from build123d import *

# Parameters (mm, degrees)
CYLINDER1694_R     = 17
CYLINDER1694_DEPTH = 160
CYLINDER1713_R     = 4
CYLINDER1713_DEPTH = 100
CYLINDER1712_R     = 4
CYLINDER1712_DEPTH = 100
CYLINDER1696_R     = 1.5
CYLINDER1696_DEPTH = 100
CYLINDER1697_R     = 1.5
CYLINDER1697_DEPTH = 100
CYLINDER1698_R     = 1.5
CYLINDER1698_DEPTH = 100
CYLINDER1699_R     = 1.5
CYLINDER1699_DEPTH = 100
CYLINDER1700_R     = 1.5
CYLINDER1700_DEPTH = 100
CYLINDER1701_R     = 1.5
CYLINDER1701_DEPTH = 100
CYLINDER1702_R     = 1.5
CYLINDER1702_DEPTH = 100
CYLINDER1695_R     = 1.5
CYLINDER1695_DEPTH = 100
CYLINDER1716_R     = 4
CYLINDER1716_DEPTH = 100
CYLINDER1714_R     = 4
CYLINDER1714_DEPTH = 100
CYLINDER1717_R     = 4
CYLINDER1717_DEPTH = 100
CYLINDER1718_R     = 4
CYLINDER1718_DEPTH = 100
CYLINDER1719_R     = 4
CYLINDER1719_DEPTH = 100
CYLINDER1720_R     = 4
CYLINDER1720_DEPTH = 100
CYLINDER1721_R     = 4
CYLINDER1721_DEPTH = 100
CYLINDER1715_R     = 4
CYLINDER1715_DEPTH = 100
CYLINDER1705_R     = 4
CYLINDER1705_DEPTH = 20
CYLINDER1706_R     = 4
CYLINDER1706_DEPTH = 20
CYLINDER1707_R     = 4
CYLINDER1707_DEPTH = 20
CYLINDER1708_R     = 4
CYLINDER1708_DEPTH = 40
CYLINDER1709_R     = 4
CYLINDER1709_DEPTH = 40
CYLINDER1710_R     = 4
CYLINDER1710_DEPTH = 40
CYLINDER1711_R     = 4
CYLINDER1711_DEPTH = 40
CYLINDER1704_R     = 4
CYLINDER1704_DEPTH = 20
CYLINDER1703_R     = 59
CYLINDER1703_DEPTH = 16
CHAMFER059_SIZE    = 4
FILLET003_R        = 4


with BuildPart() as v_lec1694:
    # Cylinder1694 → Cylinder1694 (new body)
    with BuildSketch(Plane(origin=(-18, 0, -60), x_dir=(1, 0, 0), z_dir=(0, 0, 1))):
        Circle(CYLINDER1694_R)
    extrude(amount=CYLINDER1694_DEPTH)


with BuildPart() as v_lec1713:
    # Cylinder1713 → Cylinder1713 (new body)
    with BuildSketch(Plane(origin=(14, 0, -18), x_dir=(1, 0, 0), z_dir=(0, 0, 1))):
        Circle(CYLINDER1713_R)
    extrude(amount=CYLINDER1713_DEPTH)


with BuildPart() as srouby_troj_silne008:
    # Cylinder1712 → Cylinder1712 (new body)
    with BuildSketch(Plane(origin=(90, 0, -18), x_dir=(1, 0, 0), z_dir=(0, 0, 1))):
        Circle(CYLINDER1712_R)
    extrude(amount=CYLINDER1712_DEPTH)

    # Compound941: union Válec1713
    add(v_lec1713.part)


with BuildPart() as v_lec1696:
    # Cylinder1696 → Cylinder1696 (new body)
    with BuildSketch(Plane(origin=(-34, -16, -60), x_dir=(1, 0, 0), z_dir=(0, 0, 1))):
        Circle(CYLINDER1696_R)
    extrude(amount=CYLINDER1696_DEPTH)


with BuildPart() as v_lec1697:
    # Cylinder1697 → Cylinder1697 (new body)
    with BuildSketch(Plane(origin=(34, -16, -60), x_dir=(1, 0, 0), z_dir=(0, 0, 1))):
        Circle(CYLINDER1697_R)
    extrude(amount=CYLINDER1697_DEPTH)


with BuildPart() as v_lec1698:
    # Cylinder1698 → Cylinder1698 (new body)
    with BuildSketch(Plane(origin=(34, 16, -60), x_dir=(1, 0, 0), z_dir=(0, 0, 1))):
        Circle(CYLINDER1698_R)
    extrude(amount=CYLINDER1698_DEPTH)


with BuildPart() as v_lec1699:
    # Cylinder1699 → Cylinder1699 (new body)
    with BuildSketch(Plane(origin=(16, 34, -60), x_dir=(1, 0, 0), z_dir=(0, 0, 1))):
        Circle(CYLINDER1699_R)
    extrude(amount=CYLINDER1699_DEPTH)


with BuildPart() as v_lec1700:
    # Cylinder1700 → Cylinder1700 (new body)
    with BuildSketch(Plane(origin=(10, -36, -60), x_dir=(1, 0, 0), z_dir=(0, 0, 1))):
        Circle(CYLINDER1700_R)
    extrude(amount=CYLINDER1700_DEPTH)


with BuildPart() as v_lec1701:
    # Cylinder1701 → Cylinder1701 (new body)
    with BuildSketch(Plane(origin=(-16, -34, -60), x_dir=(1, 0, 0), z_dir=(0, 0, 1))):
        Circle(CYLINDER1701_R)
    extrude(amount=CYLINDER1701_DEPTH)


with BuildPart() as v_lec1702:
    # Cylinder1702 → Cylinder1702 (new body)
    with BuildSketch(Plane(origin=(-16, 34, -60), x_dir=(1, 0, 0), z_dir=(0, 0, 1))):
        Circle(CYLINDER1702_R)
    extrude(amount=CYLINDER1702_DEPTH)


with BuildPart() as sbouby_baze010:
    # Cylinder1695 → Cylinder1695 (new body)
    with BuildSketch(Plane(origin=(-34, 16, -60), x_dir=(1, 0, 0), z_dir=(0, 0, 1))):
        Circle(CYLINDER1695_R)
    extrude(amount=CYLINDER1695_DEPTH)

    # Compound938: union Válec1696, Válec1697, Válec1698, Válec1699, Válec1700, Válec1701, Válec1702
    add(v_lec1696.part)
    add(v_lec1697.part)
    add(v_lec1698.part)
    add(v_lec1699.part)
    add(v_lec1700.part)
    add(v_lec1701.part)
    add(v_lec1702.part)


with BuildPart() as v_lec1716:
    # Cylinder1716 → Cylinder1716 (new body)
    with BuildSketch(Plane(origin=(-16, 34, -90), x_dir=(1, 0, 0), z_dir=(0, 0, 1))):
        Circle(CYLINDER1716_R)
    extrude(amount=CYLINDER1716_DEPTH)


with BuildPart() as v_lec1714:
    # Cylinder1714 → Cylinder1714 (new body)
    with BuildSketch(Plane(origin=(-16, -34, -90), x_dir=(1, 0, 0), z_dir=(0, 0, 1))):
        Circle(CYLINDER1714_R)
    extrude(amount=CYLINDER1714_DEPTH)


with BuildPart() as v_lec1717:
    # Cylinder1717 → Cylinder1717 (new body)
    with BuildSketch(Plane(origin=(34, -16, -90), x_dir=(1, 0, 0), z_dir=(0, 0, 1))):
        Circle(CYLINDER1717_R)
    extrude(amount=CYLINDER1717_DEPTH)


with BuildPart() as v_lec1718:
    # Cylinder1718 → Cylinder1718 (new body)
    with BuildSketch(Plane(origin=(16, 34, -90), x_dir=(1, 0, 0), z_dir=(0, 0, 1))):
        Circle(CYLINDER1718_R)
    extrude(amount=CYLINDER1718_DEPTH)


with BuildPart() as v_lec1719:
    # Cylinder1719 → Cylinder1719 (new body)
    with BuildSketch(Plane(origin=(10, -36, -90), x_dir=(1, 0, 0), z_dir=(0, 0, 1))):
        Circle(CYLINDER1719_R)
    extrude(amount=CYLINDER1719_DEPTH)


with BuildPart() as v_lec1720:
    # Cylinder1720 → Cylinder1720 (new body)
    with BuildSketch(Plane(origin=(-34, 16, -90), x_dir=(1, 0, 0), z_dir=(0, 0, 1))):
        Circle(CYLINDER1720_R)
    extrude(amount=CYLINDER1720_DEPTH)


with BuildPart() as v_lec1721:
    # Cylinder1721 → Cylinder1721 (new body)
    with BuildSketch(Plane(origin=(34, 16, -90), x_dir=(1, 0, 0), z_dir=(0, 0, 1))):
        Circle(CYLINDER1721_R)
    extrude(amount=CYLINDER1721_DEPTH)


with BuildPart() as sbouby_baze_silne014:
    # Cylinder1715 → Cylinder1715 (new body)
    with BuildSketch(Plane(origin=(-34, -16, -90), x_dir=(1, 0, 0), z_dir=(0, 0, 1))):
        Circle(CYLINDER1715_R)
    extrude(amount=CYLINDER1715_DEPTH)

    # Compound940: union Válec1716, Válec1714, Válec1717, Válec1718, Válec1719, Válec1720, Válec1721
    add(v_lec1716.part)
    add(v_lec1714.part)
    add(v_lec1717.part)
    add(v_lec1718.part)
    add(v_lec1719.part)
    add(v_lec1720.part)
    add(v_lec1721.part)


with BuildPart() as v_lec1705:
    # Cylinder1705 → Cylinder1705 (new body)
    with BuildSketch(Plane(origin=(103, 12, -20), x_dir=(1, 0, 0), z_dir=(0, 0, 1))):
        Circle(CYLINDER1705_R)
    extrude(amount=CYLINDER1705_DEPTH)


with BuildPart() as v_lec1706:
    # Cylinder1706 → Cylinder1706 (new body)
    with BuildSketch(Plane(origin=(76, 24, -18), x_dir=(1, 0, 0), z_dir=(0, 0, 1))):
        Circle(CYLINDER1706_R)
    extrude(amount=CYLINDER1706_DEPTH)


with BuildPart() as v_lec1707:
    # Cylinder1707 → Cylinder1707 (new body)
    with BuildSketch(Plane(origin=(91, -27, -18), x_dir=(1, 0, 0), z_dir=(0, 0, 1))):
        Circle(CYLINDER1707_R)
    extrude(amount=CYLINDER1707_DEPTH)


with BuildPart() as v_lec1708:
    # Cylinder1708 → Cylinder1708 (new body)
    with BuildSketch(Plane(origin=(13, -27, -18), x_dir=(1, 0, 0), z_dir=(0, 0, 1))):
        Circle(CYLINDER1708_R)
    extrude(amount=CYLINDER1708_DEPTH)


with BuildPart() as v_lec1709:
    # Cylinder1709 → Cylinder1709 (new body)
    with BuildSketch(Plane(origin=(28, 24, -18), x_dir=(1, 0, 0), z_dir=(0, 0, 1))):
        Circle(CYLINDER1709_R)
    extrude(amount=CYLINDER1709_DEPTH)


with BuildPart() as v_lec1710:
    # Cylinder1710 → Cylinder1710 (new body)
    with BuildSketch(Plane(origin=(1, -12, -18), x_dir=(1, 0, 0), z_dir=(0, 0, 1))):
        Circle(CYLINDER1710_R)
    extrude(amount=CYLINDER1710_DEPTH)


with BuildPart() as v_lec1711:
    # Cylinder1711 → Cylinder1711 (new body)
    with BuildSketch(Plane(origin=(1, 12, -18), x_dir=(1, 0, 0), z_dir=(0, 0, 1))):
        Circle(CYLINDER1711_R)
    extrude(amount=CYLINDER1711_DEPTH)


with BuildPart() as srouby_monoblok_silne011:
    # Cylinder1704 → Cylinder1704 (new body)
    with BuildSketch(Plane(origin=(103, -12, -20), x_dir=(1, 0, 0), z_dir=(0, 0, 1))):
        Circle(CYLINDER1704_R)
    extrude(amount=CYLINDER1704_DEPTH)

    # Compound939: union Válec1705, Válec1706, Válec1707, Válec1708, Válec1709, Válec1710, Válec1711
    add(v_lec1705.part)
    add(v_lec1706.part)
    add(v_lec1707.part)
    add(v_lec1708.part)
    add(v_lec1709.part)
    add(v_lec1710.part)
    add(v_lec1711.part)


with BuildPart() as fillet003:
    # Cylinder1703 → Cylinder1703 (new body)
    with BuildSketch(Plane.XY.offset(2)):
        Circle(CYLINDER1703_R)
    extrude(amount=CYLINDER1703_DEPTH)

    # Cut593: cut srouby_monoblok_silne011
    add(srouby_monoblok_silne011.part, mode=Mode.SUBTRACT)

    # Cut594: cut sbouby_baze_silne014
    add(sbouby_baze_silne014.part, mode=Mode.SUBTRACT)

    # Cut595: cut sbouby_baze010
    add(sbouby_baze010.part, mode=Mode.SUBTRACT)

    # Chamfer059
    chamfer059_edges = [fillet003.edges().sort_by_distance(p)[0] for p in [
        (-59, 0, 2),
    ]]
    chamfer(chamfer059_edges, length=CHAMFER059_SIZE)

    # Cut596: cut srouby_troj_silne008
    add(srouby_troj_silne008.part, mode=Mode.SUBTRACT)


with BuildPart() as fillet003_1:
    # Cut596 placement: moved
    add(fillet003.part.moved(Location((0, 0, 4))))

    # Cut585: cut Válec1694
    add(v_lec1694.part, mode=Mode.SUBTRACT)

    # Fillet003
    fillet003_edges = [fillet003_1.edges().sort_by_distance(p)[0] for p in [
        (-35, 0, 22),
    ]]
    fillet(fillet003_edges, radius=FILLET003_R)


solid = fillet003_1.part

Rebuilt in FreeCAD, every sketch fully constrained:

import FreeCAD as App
import Part
import Sketcher

V = App.Vector
Q = App.Units.Quantity


def edges_at(feature, points):
    """Names of the edges that pass closest to the given points."""
    edges = feature.Shape.Edges
    near = lambda p: min(range(len(edges)), key=lambda i: edges[i].distToShape(Part.Vertex(*p))[0])
    return sorted({f"Edge{near(p) + 1}" for p in points})

doc = App.newDocument("Part")
params = doc.addObject("Spreadsheet::Sheet", "Params")
for row, (alias, value) in enumerate([
    ("sketch1_diameter", "34 mm"),
    ("pad1_length", "160 mm"),
    ("sketch2_diameter", "8 mm"),
    ("pad2_length", "100 mm"),
    ("sketch3_diameter", "8 mm"),
    ("pad3_length", "100 mm"),
    ("sketch4_diameter", "3 mm"),
    ("pad4_length", "100 mm"),
    ("sketch5_diameter", "3 mm"),
    ("pad5_length", "100 mm"),
    ("sketch6_diameter", "3 mm"),
    ("pad6_length", "100 mm"),
    ("sketch7_diameter", "3 mm"),
    ("pad7_length", "100 mm"),
    ("sketch8_diameter", "3 mm"),
    ("pad8_length", "100 mm"),
    ("sketch9_diameter", "3 mm"),
    ("pad9_length", "100 mm"),
    ("sketch10_diameter", "3 mm"),
    ("pad10_length", "100 mm"),
    ("sketch11_diameter", "3 mm"),
    ("pad11_length", "100 mm"),
    ("sketch12_diameter", "8 mm"),
    ("pad12_length", "100 mm"),
    ("sketch13_diameter", "8 mm"),
    ("pad13_length", "100 mm"),
    ("sketch14_diameter", "8 mm"),
    ("pad14_length", "100 mm"),
    ("sketch15_diameter", "8 mm"),
    ("pad15_length", "100 mm"),
    ("sketch16_diameter", "8 mm"),
    ("pad16_length", "100 mm"),
    ("sketch17_diameter", "8 mm"),
    ("pad17_length", "100 mm"),
    ("sketch18_diameter", "8 mm"),
    ("pad18_length", "100 mm"),
    ("sketch19_diameter", "8 mm"),
    ("pad19_length", "100 mm"),
    ("sketch20_diameter", "8 mm"),
    ("pad20_length", "20 mm"),
    ("sketch21_diameter", "8 mm"),
    ("pad21_length", "20 mm"),
    ("sketch22_diameter", "8 mm"),
    ("pad22_length", "20 mm"),
    ("sketch23_diameter", "8 mm"),
    ("pad23_length", "40 mm"),
    ("sketch24_diameter", "8 mm"),
    ("pad24_length", "40 mm"),
    ("sketch25_diameter", "8 mm"),
    ("pad25_length", "40 mm"),
    ("sketch26_diameter", "8 mm"),
    ("pad26_length", "40 mm"),
    ("sketch27_diameter", "8 mm"),
    ("pad27_length", "20 mm"),
    ("sketch28_diameter", "118 mm"),
    ("pad28_length", "16 mm"),
    ("chamfer_size", "4 mm"),
    ("fillet_radius", "4 mm"),
], start=1):
    params.set(f"A{row}", alias)
    params.set(f"B{row}", "=" + value)
    params.setAlias(f"B{row}", alias)

body = doc.addObject("PartDesign::Body", "Body")

# Sketch on XY plane
sketch1 = doc.addObject("Sketcher::SketchObject", "Sketch")
body.addObject(sketch1)
sketch1.AttachmentSupport = (doc.XY_Plane, [""])
sketch1.MapMode = "FlatFace"
sketch1.AttachmentOffset = App.Placement(V(0, 0, -60), App.Rotation())
sketch1.addGeometry(Part.Circle(V(-18, 0, 0), V(0, 0, 1), 17), False)
sketch1.addConstraint([
    Sketcher.Constraint("PointOnObject", 0, 3, -1),
    Sketcher.Constraint("Diameter", 0, Q("34 mm")),
    Sketcher.Constraint("DistanceX", 0, 3, -1, 1, Q("18 mm")),
])
sketch1.setExpression("Constraints[1]", "Params.sketch1_diameter")
pad1 = doc.addObject("PartDesign::Pad", "Pad")
body.addObject(pad1)
pad1.Profile = sketch1
pad1.setExpression("Length", "Params.pad1_length")
body2 = doc.addObject("PartDesign::Body", "Body001")

# Sketch on XY plane
sketch2 = doc.addObject("Sketcher::SketchObject", "Sketch001")
body2.addObject(sketch2)
sketch2.AttachmentSupport = (doc.getObject("XY_Plane001"), [""])
sketch2.MapMode = "FlatFace"
sketch2.AttachmentOffset = App.Placement(V(0, 0, -18), App.Rotation())
sketch2.addGeometry(Part.Circle(V(14, 0, 0), V(0, 0, 1), 4), False)
sketch2.addConstraint([
    Sketcher.Constraint("PointOnObject", 0, 3, -1),
    Sketcher.Constraint("Diameter", 0, Q("8 mm")),
    Sketcher.Constraint("DistanceX", -1, 1, 0, 3, Q("14 mm")),
])
sketch2.setExpression("Constraints[1]", "Params.sketch2_diameter")
pad2 = doc.addObject("PartDesign::Pad", "Pad001")
body2.addObject(pad2)
pad2.Profile = sketch2
pad2.setExpression("Length", "Params.pad2_length")
body3 = doc.addObject("PartDesign::Body", "Body002")
body3.AllowCompound = True

# Sketch on XY plane
sketch3 = doc.addObject("Sketcher::SketchObject", "Sketch002")
body3.addObject(sketch3)
sketch3.AttachmentSupport = (doc.getObject("XY_Plane002"), [""])
sketch3.MapMode = "FlatFace"
sketch3.AttachmentOffset = App.Placement(V(0, 0, -18), App.Rotation())
sketch3.addGeometry(Part.Circle(V(90, 0, 0), V(0, 0, 1), 4), False)
sketch3.addConstraint([
    Sketcher.Constraint("PointOnObject", 0, 3, -1),
    Sketcher.Constraint("Diameter", 0, Q("8 mm")),
    Sketcher.Constraint("DistanceX", -1, 1, 0, 3, Q("90 mm")),
])
sketch3.setExpression("Constraints[1]", "Params.sketch3_diameter")
pad3 = doc.addObject("PartDesign::Pad", "Pad002")
body3.addObject(pad3)
pad3.Profile = sketch3
pad3.setExpression("Length", "Params.pad3_length")
doc.recompute()

boolean = doc.addObject("PartDesign::Boolean", "Boolean")
body3.addObject(boolean)
boolean.Type = "Fuse"
boolean.addObjects([body2])
body4 = doc.addObject("PartDesign::Body", "Body003")

# Sketch on XY plane
sketch4 = doc.addObject("Sketcher::SketchObject", "Sketch003")
body4.addObject(sketch4)
sketch4.AttachmentSupport = (doc.getObject("XY_Plane003"), [""])
sketch4.MapMode = "FlatFace"
sketch4.AttachmentOffset = App.Placement(V(0, 0, -60), App.Rotation())
sketch4.addGeometry(Part.Circle(V(-34, -16, 0), V(0, 0, 1), 1.5), False)
sketch4.addConstraint([
    Sketcher.Constraint("Diameter", 0, Q("3 mm")),
    Sketcher.Constraint("DistanceX", 0, 3, -1, 1, Q("34 mm")),
    Sketcher.Constraint("DistanceY", 0, 3, -1, 1, Q("16 mm")),
])
sketch4.setExpression("Constraints[0]", "Params.sketch4_diameter")
pad4 = doc.addObject("PartDesign::Pad", "Pad003")
body4.addObject(pad4)
pad4.Profile = sketch4
pad4.setExpression("Length", "Params.pad4_length")
body5 = doc.addObject("PartDesign::Body", "Body004")

# Sketch on XY plane
sketch5 = doc.addObject("Sketcher::SketchObject", "Sketch004")
body5.addObject(sketch5)
sketch5.AttachmentSupport = (doc.getObject("XY_Plane004"), [""])
sketch5.MapMode = "FlatFace"
sketch5.AttachmentOffset = App.Placement(V(0, 0, -60), App.Rotation())
sketch5.addGeometry(Part.Circle(V(34, -16, 0), V(0, 0, 1), 1.5), False)
sketch5.addConstraint([
    Sketcher.Constraint("Diameter", 0, Q("3 mm")),
    Sketcher.Constraint("DistanceX", -1, 1, 0, 3, Q("34 mm")),
    Sketcher.Constraint("DistanceY", 0, 3, -1, 1, Q("16 mm")),
])
sketch5.setExpression("Constraints[0]", "Params.sketch5_diameter")
pad5 = doc.addObject("PartDesign::Pad", "Pad004")
body5.addObject(pad5)
pad5.Profile = sketch5
pad5.setExpression("Length", "Params.pad5_length")
body6 = doc.addObject("PartDesign::Body", "Body005")

# Sketch on XY plane
sketch6 = doc.addObject("Sketcher::SketchObject", "Sketch005")
body6.addObject(sketch6)
sketch6.AttachmentSupport = (doc.getObject("XY_Plane005"), [""])
sketch6.MapMode = "FlatFace"
sketch6.AttachmentOffset = App.Placement(V(0, 0, -60), App.Rotation())
sketch6.addGeometry(Part.Circle(V(34, 16, 0), V(0, 0, 1), 1.5), False)
sketch6.addConstraint([
    Sketcher.Constraint("Diameter", 0, Q("3 mm")),
    Sketcher.Constraint("DistanceX", -1, 1, 0, 3, Q("34 mm")),
    Sketcher.Constraint("DistanceY", -1, 1, 0, 3, Q("16 mm")),
])
sketch6.setExpression("Constraints[0]", "Params.sketch6_diameter")
pad6 = doc.addObject("PartDesign::Pad", "Pad005")
body6.addObject(pad6)
pad6.Profile = sketch6
pad6.setExpression("Length", "Params.pad6_length")
body7 = doc.addObject("PartDesign::Body", "Body006")

# Sketch on XY plane
sketch7 = doc.addObject("Sketcher::SketchObject", "Sketch006")
body7.addObject(sketch7)
sketch7.AttachmentSupport = (doc.getObject("XY_Plane006"), [""])
sketch7.MapMode = "FlatFace"
sketch7.AttachmentOffset = App.Placement(V(0, 0, -60), App.Rotation())
sketch7.addGeometry(Part.Circle(V(16, 34, 0), V(0, 0, 1), 1.5), False)
sketch7.addConstraint([
    Sketcher.Constraint("Diameter", 0, Q("3 mm")),
    Sketcher.Constraint("DistanceX", -1, 1, 0, 3, Q("16 mm")),
    Sketcher.Constraint("DistanceY", -1, 1, 0, 3, Q("34 mm")),
])
sketch7.setExpression("Constraints[0]", "Params.sketch7_diameter")
pad7 = doc.addObject("PartDesign::Pad", "Pad006")
body7.addObject(pad7)
pad7.Profile = sketch7
pad7.setExpression("Length", "Params.pad7_length")
body8 = doc.addObject("PartDesign::Body", "Body007")

# Sketch on XY plane
sketch8 = doc.addObject("Sketcher::SketchObject", "Sketch007")
body8.addObject(sketch8)
sketch8.AttachmentSupport = (doc.getObject("XY_Plane007"), [""])
sketch8.MapMode = "FlatFace"
sketch8.AttachmentOffset = App.Placement(V(0, 0, -60), App.Rotation())
sketch8.addGeometry(Part.Circle(V(10, -36, 0), V(0, 0, 1), 1.5), False)
sketch8.addConstraint([
    Sketcher.Constraint("Diameter", 0, Q("3 mm")),
    Sketcher.Constraint("DistanceX", -1, 1, 0, 3, Q("10 mm")),
    Sketcher.Constraint("DistanceY", 0, 3, -1, 1, Q("36 mm")),
])
sketch8.setExpression("Constraints[0]", "Params.sketch8_diameter")
pad8 = doc.addObject("PartDesign::Pad", "Pad007")
body8.addObject(pad8)
pad8.Profile = sketch8
pad8.setExpression("Length", "Params.pad8_length")
body9 = doc.addObject("PartDesign::Body", "Body008")

# Sketch on XY plane
sketch9 = doc.addObject("Sketcher::SketchObject", "Sketch008")
body9.addObject(sketch9)
sketch9.AttachmentSupport = (doc.getObject("XY_Plane008"), [""])
sketch9.MapMode = "FlatFace"
sketch9.AttachmentOffset = App.Placement(V(0, 0, -60), App.Rotation())
sketch9.addGeometry(Part.Circle(V(-16, -34, 0), V(0, 0, 1), 1.5), False)
sketch9.addConstraint([
    Sketcher.Constraint("Diameter", 0, Q("3 mm")),
    Sketcher.Constraint("DistanceX", 0, 3, -1, 1, Q("16 mm")),
    Sketcher.Constraint("DistanceY", 0, 3, -1, 1, Q("34 mm")),
])
sketch9.setExpression("Constraints[0]", "Params.sketch9_diameter")
pad9 = doc.addObject("PartDesign::Pad", "Pad008")
body9.addObject(pad9)
pad9.Profile = sketch9
pad9.setExpression("Length", "Params.pad9_length")
body10 = doc.addObject("PartDesign::Body", "Body009")

# Sketch on XY plane
sketch10 = doc.addObject("Sketcher::SketchObject", "Sketch009")
body10.addObject(sketch10)
sketch10.AttachmentSupport = (doc.getObject("XY_Plane009"), [""])
sketch10.MapMode = "FlatFace"
sketch10.AttachmentOffset = App.Placement(V(0, 0, -60), App.Rotation())
sketch10.addGeometry(Part.Circle(V(-16, 34, 0), V(0, 0, 1), 1.5), False)
sketch10.addConstraint([
    Sketcher.Constraint("Diameter", 0, Q("3 mm")),
    Sketcher.Constraint("DistanceX", 0, 3, -1, 1, Q("16 mm")),
    Sketcher.Constraint("DistanceY", -1, 1, 0, 3, Q("34 mm")),
])
sketch10.setExpression("Constraints[0]", "Params.sketch10_diameter")
pad10 = doc.addObject("PartDesign::Pad", "Pad009")
body10.addObject(pad10)
pad10.Profile = sketch10
pad10.setExpression("Length", "Params.pad10_length")
body11 = doc.addObject("PartDesign::Body", "Body010")
body11.AllowCompound = True

# Sketch on XY plane
sketch11 = doc.addObject("Sketcher::SketchObject", "Sketch010")
body11.addObject(sketch11)
sketch11.AttachmentSupport = (doc.getObject("XY_Plane010"), [""])
sketch11.MapMode = "FlatFace"
sketch11.AttachmentOffset = App.Placement(V(0, 0, -60), App.Rotation())
sketch11.addGeometry(Part.Circle(V(-34, 16, 0), V(0, 0, 1), 1.5), False)
sketch11.addConstraint([
    Sketcher.Constraint("Diameter", 0, Q("3 mm")),
    Sketcher.Constraint("DistanceX", 0, 3, -1, 1, Q("34 mm")),
    Sketcher.Constraint("DistanceY", -1, 1, 0, 3, Q("16 mm")),
])
sketch11.setExpression("Constraints[0]", "Params.sketch11_diameter")
pad11 = doc.addObject("PartDesign::Pad", "Pad010")
body11.addObject(pad11)
pad11.Profile = sketch11
pad11.setExpression("Length", "Params.pad11_length")
doc.recompute()

boolean2 = doc.addObject("PartDesign::Boolean", "Boolean001")
body11.addObject(boolean2)
boolean2.Type = "Fuse"
boolean2.addObjects([body4])
doc.recompute()

boolean3 = doc.addObject("PartDesign::Boolean", "Boolean002")
body11.addObject(boolean3)
boolean3.Type = "Fuse"
boolean3.addObjects([body5])
doc.recompute()

boolean4 = doc.addObject("PartDesign::Boolean", "Boolean003")
body11.addObject(boolean4)
boolean4.Type = "Fuse"
boolean4.addObjects([body6])
doc.recompute()

boolean5 = doc.addObject("PartDesign::Boolean", "Boolean004")
body11.addObject(boolean5)
boolean5.Type = "Fuse"
boolean5.addObjects([body7])
doc.recompute()

boolean6 = doc.addObject("PartDesign::Boolean", "Boolean005")
body11.addObject(boolean6)
boolean6.Type = "Fuse"
boolean6.addObjects([body8])
doc.recompute()

boolean7 = doc.addObject("PartDesign::Boolean", "Boolean006")
body11.addObject(boolean7)
boolean7.Type = "Fuse"
boolean7.addObjects([body9])
doc.recompute()

boolean8 = doc.addObject("PartDesign::Boolean", "Boolean007")
body11.addObject(boolean8)
boolean8.Type = "Fuse"
boolean8.addObjects([body10])
body12 = doc.addObject("PartDesign::Body", "Body011")

# Sketch on XY plane
sketch12 = doc.addObject("Sketcher::SketchObject", "Sketch011")
body12.addObject(sketch12)
sketch12.AttachmentSupport = (doc.getObject("XY_Plane011"), [""])
sketch12.MapMode = "FlatFace"
sketch12.AttachmentOffset = App.Placement(V(0, 0, -90), App.Rotation())
sketch12.addGeometry(Part.Circle(V(-16, 34, 0), V(0, 0, 1), 4), False)
sketch12.addConstraint([
    Sketcher.Constraint("Diameter", 0, Q("8 mm")),
    Sketcher.Constraint("DistanceX", 0, 3, -1, 1, Q("16 mm")),
    Sketcher.Constraint("DistanceY", -1, 1, 0, 3, Q("34 mm")),
])
sketch12.setExpression("Constraints[0]", "Params.sketch12_diameter")
pad12 = doc.addObject("PartDesign::Pad", "Pad011")
body12.addObject(pad12)
pad12.Profile = sketch12
pad12.setExpression("Length", "Params.pad12_length")
body13 = doc.addObject("PartDesign::Body", "Body012")

# Sketch on XY plane
sketch13 = doc.addObject("Sketcher::SketchObject", "Sketch012")
body13.addObject(sketch13)
sketch13.AttachmentSupport = (doc.getObject("XY_Plane012"), [""])
sketch13.MapMode = "FlatFace"
sketch13.AttachmentOffset = App.Placement(V(0, 0, -90), App.Rotation())
sketch13.addGeometry(Part.Circle(V(-16, -34, 0), V(0, 0, 1), 4), False)
sketch13.addConstraint([
    Sketcher.Constraint("Diameter", 0, Q("8 mm")),
    Sketcher.Constraint("DistanceX", 0, 3, -1, 1, Q("16 mm")),
    Sketcher.Constraint("DistanceY", 0, 3, -1, 1, Q("34 mm")),
])
sketch13.setExpression("Constraints[0]", "Params.sketch13_diameter")
pad13 = doc.addObject("PartDesign::Pad", "Pad012")
body13.addObject(pad13)
pad13.Profile = sketch13
pad13.setExpression("Length", "Params.pad13_length")
body14 = doc.addObject("PartDesign::Body", "Body013")

# Sketch on XY plane
sketch14 = doc.addObject("Sketcher::SketchObject", "Sketch013")
body14.addObject(sketch14)
sketch14.AttachmentSupport = (doc.getObject("XY_Plane013"), [""])
sketch14.MapMode = "FlatFace"
sketch14.AttachmentOffset = App.Placement(V(0, 0, -90), App.Rotation())
sketch14.addGeometry(Part.Circle(V(34, -16, 0), V(0, 0, 1), 4), False)
sketch14.addConstraint([
    Sketcher.Constraint("Diameter", 0, Q("8 mm")),
    Sketcher.Constraint("DistanceX", -1, 1, 0, 3, Q("34 mm")),
    Sketcher.Constraint("DistanceY", 0, 3, -1, 1, Q("16 mm")),
])
sketch14.setExpression("Constraints[0]", "Params.sketch14_diameter")
pad14 = doc.addObject("PartDesign::Pad", "Pad013")
body14.addObject(pad14)
pad14.Profile = sketch14
pad14.setExpression("Length", "Params.pad14_length")
body15 = doc.addObject("PartDesign::Body", "Body014")

# Sketch on XY plane
sketch15 = doc.addObject("Sketcher::SketchObject", "Sketch014")
body15.addObject(sketch15)
sketch15.AttachmentSupport = (doc.getObject("XY_Plane014"), [""])
sketch15.MapMode = "FlatFace"
sketch15.AttachmentOffset = App.Placement(V(0, 0, -90), App.Rotation())
sketch15.addGeometry(Part.Circle(V(16, 34, 0), V(0, 0, 1), 4), False)
sketch15.addConstraint([
    Sketcher.Constraint("Diameter", 0, Q("8 mm")),
    Sketcher.Constraint("DistanceX", -1, 1, 0, 3, Q("16 mm")),
    Sketcher.Constraint("DistanceY", -1, 1, 0, 3, Q("34 mm")),
])
sketch15.setExpression("Constraints[0]", "Params.sketch15_diameter")
pad15 = doc.addObject("PartDesign::Pad", "Pad014")
body15.addObject(pad15)
pad15.Profile = sketch15
pad15.setExpression("Length", "Params.pad15_length")
body16 = doc.addObject("PartDesign::Body", "Body015")

# Sketch on XY plane
sketch16 = doc.addObject("Sketcher::SketchObject", "Sketch015")
body16.addObject(sketch16)
sketch16.AttachmentSupport = (doc.getObject("XY_Plane015"), [""])
sketch16.MapMode = "FlatFace"
sketch16.AttachmentOffset = App.Placement(V(0, 0, -90), App.Rotation())
sketch16.addGeometry(Part.Circle(V(10, -36, 0), V(0, 0, 1), 4), False)
sketch16.addConstraint([
    Sketcher.Constraint("Diameter", 0, Q("8 mm")),
    Sketcher.Constraint("DistanceX", -1, 1, 0, 3, Q("10 mm")),
    Sketcher.Constraint("DistanceY", 0, 3, -1, 1, Q("36 mm")),
])
sketch16.setExpression("Constraints[0]", "Params.sketch16_diameter")
pad16 = doc.addObject("PartDesign::Pad", "Pad015")
body16.addObject(pad16)
pad16.Profile = sketch16
pad16.setExpression("Length", "Params.pad16_length")
body17 = doc.addObject("PartDesign::Body", "Body016")

# Sketch on XY plane
sketch17 = doc.addObject("Sketcher::SketchObject", "Sketch016")
body17.addObject(sketch17)
sketch17.AttachmentSupport = (doc.getObject("XY_Plane016"), [""])
sketch17.MapMode = "FlatFace"
sketch17.AttachmentOffset = App.Placement(V(0, 0, -90), App.Rotation())
sketch17.addGeometry(Part.Circle(V(-34, 16, 0), V(0, 0, 1), 4), False)
sketch17.addConstraint([
    Sketcher.Constraint("Diameter", 0, Q("8 mm")),
    Sketcher.Constraint("DistanceX", 0, 3, -1, 1, Q("34 mm")),
    Sketcher.Constraint("DistanceY", -1, 1, 0, 3, Q("16 mm")),
])
sketch17.setExpression("Constraints[0]", "Params.sketch17_diameter")
pad17 = doc.addObject("PartDesign::Pad", "Pad016")
body17.addObject(pad17)
pad17.Profile = sketch17
pad17.setExpression("Length", "Params.pad17_length")
body18 = doc.addObject("PartDesign::Body", "Body017")

# Sketch on XY plane
sketch18 = doc.addObject("Sketcher::SketchObject", "Sketch017")
body18.addObject(sketch18)
sketch18.AttachmentSupport = (doc.getObject("XY_Plane017"), [""])
sketch18.MapMode = "FlatFace"
sketch18.AttachmentOffset = App.Placement(V(0, 0, -90), App.Rotation())
sketch18.addGeometry(Part.Circle(V(34, 16, 0), V(0, 0, 1), 4), False)
sketch18.addConstraint([
    Sketcher.Constraint("Diameter", 0, Q("8 mm")),
    Sketcher.Constraint("DistanceX", -1, 1, 0, 3, Q("34 mm")),
    Sketcher.Constraint("DistanceY", -1, 1, 0, 3, Q("16 mm")),
])
sketch18.setExpression("Constraints[0]", "Params.sketch18_diameter")
pad18 = doc.addObject("PartDesign::Pad", "Pad017")
body18.addObject(pad18)
pad18.Profile = sketch18
pad18.setExpression("Length", "Params.pad18_length")
body19 = doc.addObject("PartDesign::Body", "Body018")
body19.AllowCompound = True

# Sketch on XY plane
sketch19 = doc.addObject("Sketcher::SketchObject", "Sketch018")
body19.addObject(sketch19)
sketch19.AttachmentSupport = (doc.getObject("XY_Plane018"), [""])
sketch19.MapMode = "FlatFace"
sketch19.AttachmentOffset = App.Placement(V(0, 0, -90), App.Rotation())
sketch19.addGeometry(Part.Circle(V(-34, -16, 0), V(0, 0, 1), 4), False)
sketch19.addConstraint([
    Sketcher.Constraint("Diameter", 0, Q("8 mm")),
    Sketcher.Constraint("DistanceX", 0, 3, -1, 1, Q("34 mm")),
    Sketcher.Constraint("DistanceY", 0, 3, -1, 1, Q("16 mm")),
])
sketch19.setExpression("Constraints[0]", "Params.sketch19_diameter")
pad19 = doc.addObject("PartDesign::Pad", "Pad018")
body19.addObject(pad19)
pad19.Profile = sketch19
pad19.setExpression("Length", "Params.pad19_length")
doc.recompute()

boolean9 = doc.addObject("PartDesign::Boolean", "Boolean008")
body19.addObject(boolean9)
boolean9.Type = "Fuse"
boolean9.addObjects([body12])
doc.recompute()

boolean10 = doc.addObject("PartDesign::Boolean", "Boolean009")
body19.addObject(boolean10)
boolean10.Type = "Fuse"
boolean10.addObjects([body13])
doc.recompute()

boolean11 = doc.addObject("PartDesign::Boolean", "Boolean010")
body19.addObject(boolean11)
boolean11.Type = "Fuse"
boolean11.addObjects([body14])
doc.recompute()

boolean12 = doc.addObject("PartDesign::Boolean", "Boolean011")
body19.addObject(boolean12)
boolean12.Type = "Fuse"
boolean12.addObjects([body15])
doc.recompute()

boolean13 = doc.addObject("PartDesign::Boolean", "Boolean012")
body19.addObject(boolean13)
boolean13.Type = "Fuse"
boolean13.addObjects([body16])
doc.recompute()

boolean14 = doc.addObject("PartDesign::Boolean", "Boolean013")
body19.addObject(boolean14)
boolean14.Type = "Fuse"
boolean14.addObjects([body17])
doc.recompute()

boolean15 = doc.addObject("PartDesign::Boolean", "Boolean014")
body19.addObject(boolean15)
boolean15.Type = "Fuse"
boolean15.addObjects([body18])
body20 = doc.addObject("PartDesign::Body", "Body019")

# Sketch on XY plane
sketch20 = doc.addObject("Sketcher::SketchObject", "Sketch019")
body20.addObject(sketch20)
sketch20.AttachmentSupport = (doc.getObject("XY_Plane019"), [""])
sketch20.MapMode = "FlatFace"
sketch20.AttachmentOffset = App.Placement(V(0, 0, -20), App.Rotation())
sketch20.addGeometry(Part.Circle(V(103, 12, 0), V(0, 0, 1), 4), False)
sketch20.addConstraint([
    Sketcher.Constraint("Diameter", 0, Q("8 mm")),
    Sketcher.Constraint("DistanceX", -1, 1, 0, 3, Q("103 mm")),
    Sketcher.Constraint("DistanceY", -1, 1, 0, 3, Q("12 mm")),
])
sketch20.setExpression("Constraints[0]", "Params.sketch20_diameter")
pad20 = doc.addObject("PartDesign::Pad", "Pad019")
body20.addObject(pad20)
pad20.Profile = sketch20
pad20.setExpression("Length", "Params.pad20_length")
body21 = doc.addObject("PartDesign::Body", "Body020")

# Sketch on XY plane
sketch21 = doc.addObject("Sketcher::SketchObject", "Sketch020")
body21.addObject(sketch21)
sketch21.AttachmentSupport = (doc.getObject("XY_Plane020"), [""])
sketch21.MapMode = "FlatFace"
sketch21.AttachmentOffset = App.Placement(V(0, 0, -18), App.Rotation())
sketch21.addGeometry(Part.Circle(V(76, 24, 0), V(0, 0, 1), 4), False)
sketch21.addConstraint([
    Sketcher.Constraint("Diameter", 0, Q("8 mm")),
    Sketcher.Constraint("DistanceX", -1, 1, 0, 3, Q("76 mm")),
    Sketcher.Constraint("DistanceY", -1, 1, 0, 3, Q("24 mm")),
])
sketch21.setExpression("Constraints[0]", "Params.sketch21_diameter")
pad21 = doc.addObject("PartDesign::Pad", "Pad020")
body21.addObject(pad21)
pad21.Profile = sketch21
pad21.setExpression("Length", "Params.pad21_length")
body22 = doc.addObject("PartDesign::Body", "Body021")

# Sketch on XY plane
sketch22 = doc.addObject("Sketcher::SketchObject", "Sketch021")
body22.addObject(sketch22)
sketch22.AttachmentSupport = (doc.getObject("XY_Plane021"), [""])
sketch22.MapMode = "FlatFace"
sketch22.AttachmentOffset = App.Placement(V(0, 0, -18), App.Rotation())
sketch22.addGeometry(Part.Circle(V(91, -27, 0), V(0, 0, 1), 4), False)
sketch22.addConstraint([
    Sketcher.Constraint("Diameter", 0, Q("8 mm")),
    Sketcher.Constraint("DistanceX", -1, 1, 0, 3, Q("91 mm")),
    Sketcher.Constraint("DistanceY", 0, 3, -1, 1, Q("27 mm")),
])
sketch22.setExpression("Constraints[0]", "Params.sketch22_diameter")
pad22 = doc.addObject("PartDesign::Pad", "Pad021")
body22.addObject(pad22)
pad22.Profile = sketch22
pad22.setExpression("Length", "Params.pad22_length")
body23 = doc.addObject("PartDesign::Body", "Body022")

# Sketch on XY plane
sketch23 = doc.addObject("Sketcher::SketchObject", "Sketch022")
body23.addObject(sketch23)
sketch23.AttachmentSupport = (doc.getObject("XY_Plane022"), [""])
sketch23.MapMode = "FlatFace"
sketch23.AttachmentOffset = App.Placement(V(0, 0, -18), App.Rotation())
sketch23.addGeometry(Part.Circle(V(13, -27, 0), V(0, 0, 1), 4), False)
sketch23.addConstraint([
    Sketcher.Constraint("Diameter", 0, Q("8 mm")),
    Sketcher.Constraint("DistanceX", -1, 1, 0, 3, Q("13 mm")),
    Sketcher.Constraint("DistanceY", 0, 3, -1, 1, Q("27 mm")),
])
sketch23.setExpression("Constraints[0]", "Params.sketch23_diameter")
pad23 = doc.addObject("PartDesign::Pad", "Pad022")
body23.addObject(pad23)
pad23.Profile = sketch23
pad23.setExpression("Length", "Params.pad23_length")
body24 = doc.addObject("PartDesign::Body", "Body023")

# Sketch on XY plane
sketch24 = doc.addObject("Sketcher::SketchObject", "Sketch023")
body24.addObject(sketch24)
sketch24.AttachmentSupport = (doc.getObject("XY_Plane023"), [""])
sketch24.MapMode = "FlatFace"
sketch24.AttachmentOffset = App.Placement(V(0, 0, -18), App.Rotation())
sketch24.addGeometry(Part.Circle(V(28, 24, 0), V(0, 0, 1), 4), False)
sketch24.addConstraint([
    Sketcher.Constraint("Diameter", 0, Q("8 mm")),
    Sketcher.Constraint("DistanceX", -1, 1, 0, 3, Q("28 mm")),
    Sketcher.Constraint("DistanceY", -1, 1, 0, 3, Q("24 mm")),
])
sketch24.setExpression("Constraints[0]", "Params.sketch24_diameter")
pad24 = doc.addObject("PartDesign::Pad", "Pad023")
body24.addObject(pad24)
pad24.Profile = sketch24
pad24.setExpression("Length", "Params.pad24_length")
body25 = doc.addObject("PartDesign::Body", "Body024")

# Sketch on XY plane
sketch25 = doc.addObject("Sketcher::SketchObject", "Sketch024")
body25.addObject(sketch25)
sketch25.AttachmentSupport = (doc.getObject("XY_Plane024"), [""])
sketch25.MapMode = "FlatFace"
sketch25.AttachmentOffset = App.Placement(V(0, 0, -18), App.Rotation())
sketch25.addGeometry(Part.Circle(V(1, -12, 0), V(0, 0, 1), 4), False)
sketch25.addConstraint([
    Sketcher.Constraint("Diameter", 0, Q("8 mm")),
    Sketcher.Constraint("DistanceX", -1, 1, 0, 3, Q("1 mm")),
    Sketcher.Constraint("DistanceY", 0, 3, -1, 1, Q("12 mm")),
])
sketch25.setExpression("Constraints[0]", "Params.sketch25_diameter")
pad25 = doc.addObject("PartDesign::Pad", "Pad024")
body25.addObject(pad25)
pad25.Profile = sketch25
pad25.setExpression("Length", "Params.pad25_length")
body26 = doc.addObject("PartDesign::Body", "Body025")

# Sketch on XY plane
sketch26 = doc.addObject("Sketcher::SketchObject", "Sketch025")
body26.addObject(sketch26)
sketch26.AttachmentSupport = (doc.getObject("XY_Plane025"), [""])
sketch26.MapMode = "FlatFace"
sketch26.AttachmentOffset = App.Placement(V(0, 0, -18), App.Rotation())
sketch26.addGeometry(Part.Circle(V(1, 12, 0), V(0, 0, 1), 4), False)
sketch26.addConstraint([
    Sketcher.Constraint("Diameter", 0, Q("8 mm")),
    Sketcher.Constraint("DistanceX", -1, 1, 0, 3, Q("1 mm")),
    Sketcher.Constraint("DistanceY", -1, 1, 0, 3, Q("12 mm")),
])
sketch26.setExpression("Constraints[0]", "Params.sketch26_diameter")
pad26 = doc.addObject("PartDesign::Pad", "Pad025")
body26.addObject(pad26)
pad26.Profile = sketch26
pad26.setExpression("Length", "Params.pad26_length")
body27 = doc.addObject("PartDesign::Body", "Body026")
body27.AllowCompound = True

# Sketch on XY plane
sketch27 = doc.addObject("Sketcher::SketchObject", "Sketch026")
body27.addObject(sketch27)
sketch27.AttachmentSupport = (doc.getObject("XY_Plane026"), [""])
sketch27.MapMode = "FlatFace"
sketch27.AttachmentOffset = App.Placement(V(0, 0, -20), App.Rotation())
sketch27.addGeometry(Part.Circle(V(103, -12, 0), V(0, 0, 1), 4), False)
sketch27.addConstraint([
    Sketcher.Constraint("Diameter", 0, Q("8 mm")),
    Sketcher.Constraint("DistanceX", -1, 1, 0, 3, Q("103 mm")),
    Sketcher.Constraint("DistanceY", 0, 3, -1, 1, Q("12 mm")),
])
sketch27.setExpression("Constraints[0]", "Params.sketch27_diameter")
pad27 = doc.addObject("PartDesign::Pad", "Pad026")
body27.addObject(pad27)
pad27.Profile = sketch27
pad27.setExpression("Length", "Params.pad27_length")
doc.recompute()

boolean16 = doc.addObject("PartDesign::Boolean", "Boolean015")
body27.addObject(boolean16)
boolean16.Type = "Fuse"
boolean16.addObjects([body20])
doc.recompute()

boolean17 = doc.addObject("PartDesign::Boolean", "Boolean016")
body27.addObject(boolean17)
boolean17.Type = "Fuse"
boolean17.addObjects([body21])
doc.recompute()

boolean18 = doc.addObject("PartDesign::Boolean", "Boolean017")
body27.addObject(boolean18)
boolean18.Type = "Fuse"
boolean18.addObjects([body22])
doc.recompute()

boolean19 = doc.addObject("PartDesign::Boolean", "Boolean018")
body27.addObject(boolean19)
boolean19.Type = "Fuse"
boolean19.addObjects([body23])
doc.recompute()

boolean20 = doc.addObject("PartDesign::Boolean", "Boolean019")
body27.addObject(boolean20)
boolean20.Type = "Fuse"
boolean20.addObjects([body24])
doc.recompute()

boolean21 = doc.addObject("PartDesign::Boolean", "Boolean020")
body27.addObject(boolean21)
boolean21.Type = "Fuse"
boolean21.addObjects([body25])
doc.recompute()

boolean22 = doc.addObject("PartDesign::Boolean", "Boolean021")
body27.addObject(boolean22)
boolean22.Type = "Fuse"
boolean22.addObjects([body26])
body28 = doc.addObject("PartDesign::Body", "Body027")

# Sketch on XY plane
sketch28 = doc.addObject("Sketcher::SketchObject", "Sketch027")
body28.addObject(sketch28)
sketch28.AttachmentSupport = (doc.getObject("XY_Plane027"), [""])
sketch28.MapMode = "FlatFace"
sketch28.AttachmentOffset = App.Placement(V(0, 0, 2), App.Rotation())
sketch28.addGeometry(Part.Circle(V(0, 0, 0), V(0, 0, 1), 59), False)
sketch28.addConstraint([
    Sketcher.Constraint("Coincident", 0, 3, -1, 1),
    Sketcher.Constraint("Diameter", 0, Q("118 mm")),
])
sketch28.setExpression("Constraints[1]", "Params.sketch28_diameter")
pad28 = doc.addObject("PartDesign::Pad", "Pad027")
body28.addObject(pad28)
pad28.Profile = sketch28
pad28.setExpression("Length", "Params.pad28_length")
doc.recompute()

boolean23 = doc.addObject("PartDesign::Boolean", "Boolean022")
body28.addObject(boolean23)
boolean23.Type = "Cut"
boolean23.addObjects([body27])
doc.recompute()

boolean24 = doc.addObject("PartDesign::Boolean", "Boolean023")
body28.addObject(boolean24)
boolean24.Type = "Cut"
boolean24.addObjects([body19])
doc.recompute()

boolean25 = doc.addObject("PartDesign::Boolean", "Boolean024")
body28.addObject(boolean25)
boolean25.Type = "Cut"
boolean25.addObjects([body11])
doc.recompute()

chamfer = doc.addObject("PartDesign::Chamfer", "Chamfer")
body28.addObject(chamfer)
chamfer.Base = (boolean25, edges_at(boolean25, [(-59, 0, 2)]))
chamfer.setExpression("Size", "Params.chamfer_size")
doc.recompute()

boolean26 = doc.addObject("PartDesign::Boolean", "Boolean025")
body28.addObject(boolean26)
boolean26.Type = "Cut"
boolean26.addObjects([body3])
body29 = doc.addObject("PartDesign::Body", "Body028")
doc.recompute()

body28.Placement = App.Placement(V(0, 0, 4), App.Rotation(V(0, 0, 1), 0))
boolean27 = doc.addObject("PartDesign::Boolean", "Boolean026")
body29.addObject(boolean27)
boolean27.Type = "Fuse"
boolean27.addObjects([body28])
doc.recompute()

boolean28 = doc.addObject("PartDesign::Boolean", "Boolean027")
body29.addObject(boolean28)
boolean28.Type = "Cut"
boolean28.addObjects([body])
doc.recompute()

fillet = doc.addObject("PartDesign::Fillet", "Fillet")
body29.addObject(fillet)
fillet.Base = (boolean28, edges_at(boolean28, [(-35, 0, 22)]))
fillet.setExpression("Radius", "Params.fillet_radius")

doc.recompute()
